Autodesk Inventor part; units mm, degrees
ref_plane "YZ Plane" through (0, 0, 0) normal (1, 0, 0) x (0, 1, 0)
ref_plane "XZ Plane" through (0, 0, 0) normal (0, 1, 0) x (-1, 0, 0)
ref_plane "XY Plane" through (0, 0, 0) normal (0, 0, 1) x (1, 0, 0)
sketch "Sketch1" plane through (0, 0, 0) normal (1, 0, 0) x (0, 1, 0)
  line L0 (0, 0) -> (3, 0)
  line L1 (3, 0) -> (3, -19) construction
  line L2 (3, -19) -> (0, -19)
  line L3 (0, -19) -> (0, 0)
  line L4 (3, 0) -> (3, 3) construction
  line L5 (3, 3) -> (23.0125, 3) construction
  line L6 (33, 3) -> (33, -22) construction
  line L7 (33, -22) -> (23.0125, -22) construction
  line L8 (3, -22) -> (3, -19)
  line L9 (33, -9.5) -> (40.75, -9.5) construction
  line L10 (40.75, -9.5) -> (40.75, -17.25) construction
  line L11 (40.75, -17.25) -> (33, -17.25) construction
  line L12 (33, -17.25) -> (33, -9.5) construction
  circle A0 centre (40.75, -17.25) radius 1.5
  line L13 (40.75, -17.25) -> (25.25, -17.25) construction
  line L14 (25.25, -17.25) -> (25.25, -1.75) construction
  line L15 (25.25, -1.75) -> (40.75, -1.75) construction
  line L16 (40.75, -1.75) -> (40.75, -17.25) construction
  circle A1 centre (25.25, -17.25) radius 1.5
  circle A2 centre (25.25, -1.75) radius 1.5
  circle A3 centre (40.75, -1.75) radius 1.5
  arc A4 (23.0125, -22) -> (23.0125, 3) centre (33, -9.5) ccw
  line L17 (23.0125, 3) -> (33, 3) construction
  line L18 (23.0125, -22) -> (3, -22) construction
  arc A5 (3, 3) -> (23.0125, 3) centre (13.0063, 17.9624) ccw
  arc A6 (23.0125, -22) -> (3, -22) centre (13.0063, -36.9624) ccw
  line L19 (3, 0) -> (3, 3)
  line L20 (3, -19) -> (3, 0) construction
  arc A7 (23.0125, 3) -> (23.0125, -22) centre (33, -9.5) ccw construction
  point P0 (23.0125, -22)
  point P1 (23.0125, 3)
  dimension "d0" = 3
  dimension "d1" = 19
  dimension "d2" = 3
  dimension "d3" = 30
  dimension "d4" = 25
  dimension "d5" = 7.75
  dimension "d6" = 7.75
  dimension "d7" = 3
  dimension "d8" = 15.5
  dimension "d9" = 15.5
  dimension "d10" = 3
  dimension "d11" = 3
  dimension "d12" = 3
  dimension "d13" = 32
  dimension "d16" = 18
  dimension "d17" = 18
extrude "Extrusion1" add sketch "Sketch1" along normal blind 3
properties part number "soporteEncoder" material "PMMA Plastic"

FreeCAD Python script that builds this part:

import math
import FreeCAD as App
import Part
import Sketcher

doc = App.newDocument("Part")
body = doc.addObject("PartDesign::Body", "Body")

sketch1 = doc.addObject("Sketcher::SketchObject", "Sketch")
body.addObject(sketch1)
sketch1.AttachmentSupport = (doc.YZ_Plane, [""])
sketch1.MapMode = "FlatFace"
sketch1.addGeometry(Part.LineSegment(App.Vector(3, 0, 0), App.Vector(0, 0, 0)), False)
sketch1.addGeometry(Part.LineSegment(App.Vector(0, 0, 0), App.Vector(0, -19, 0)), False)
sketch1.addGeometry(Part.LineSegment(App.Vector(0, -19, 0), App.Vector(3, -19, 0)), False)
sketch1.addGeometry(Part.LineSegment(App.Vector(3, -19, 0), App.Vector(3, -22, 0)), False)
sketch1.addGeometry(Part.ArcOfCircle(Part.Circle(App.Vector(13.0063, -36.9624, 0), App.Vector(0, 0, 1), 17.999929), math.radians(56.227122), math.radians(123.773142)), False)
sketch1.addGeometry(Part.ArcOfCircle(Part.Circle(App.Vector(33, -9.5, 0), App.Vector(0, 0, 1), 16.000005), math.radians(-128.624855), math.radians(128.624855)), False)
sketch1.addGeometry(Part.ArcOfCircle(Part.Circle(App.Vector(13.0063, 17.9624, 0), App.Vector(0, 0, 1), 17.999985), math.radians(-123.773142), math.radians(-56.227122)), False)
sketch1.addGeometry(Part.LineSegment(App.Vector(3, 3, 0), App.Vector(3, 0, 0)), False)
sketch1.addGeometry(Part.Circle(App.Vector(25.25, -17.25, 0), App.Vector(0, 0, 1), 1.5), False)
sketch1.addGeometry(Part.Circle(App.Vector(40.75, -17.25, 0), App.Vector(0, 0, 1), 1.5), False)
sketch1.addGeometry(Part.Circle(App.Vector(25.25, -1.75, 0), App.Vector(0, 0, 1), 1.5), False)
sketch1.addGeometry(Part.Circle(App.Vector(40.75, -1.75, 0), App.Vector(0, 0, 1), 1.5), False)
sketch1.addConstraint(Sketcher.Constraint("Coincident", 0, 2, 1, 1))
sketch1.addConstraint(Sketcher.Constraint("Coincident", 1, 2, 2, 1))
sketch1.addConstraint(Sketcher.Constraint("Coincident", 2, 2, 3, 1))
sketch1.addConstraint(Sketcher.Constraint("Coincident", 3, 2, 4, 2))
sketch1.addConstraint(Sketcher.Constraint("Coincident", 4, 1, 5, 1))
sketch1.addConstraint(Sketcher.Constraint("Coincident", 5, 2, 6, 2))
sketch1.addConstraint(Sketcher.Constraint("Coincident", 6, 1, 7, 1))
sketch1.addConstraint(Sketcher.Constraint("Coincident", 7, 2, 0, 1))
sketch1.addConstraint(Sketcher.Constraint("Horizontal", 0))
sketch1.addConstraint(Sketcher.Constraint("Vertical", 1))
sketch1.addConstraint(Sketcher.Constraint("Horizontal", 2))
sketch1.addConstraint(Sketcher.Constraint("Vertical", 3))
sketch1.addConstraint(Sketcher.Constraint("Vertical", 7))
sketch1.addConstraint(Sketcher.Constraint("Coincident", 0, 2, -1, 1))
sketch1.addConstraint(Sketcher.Constraint("Equal", 4, 6))
sketch1.addConstraint(Sketcher.Constraint("Equal", 8, 9))
sketch1.addConstraint(Sketcher.Constraint("Equal", 9, 10))
sketch1.addConstraint(Sketcher.Constraint("Equal", 10, 11))
sketch1.addConstraint(Sketcher.Constraint("Horizontal", 8, 3, 9, 3))
sketch1.addConstraint(Sketcher.Constraint("Horizontal", 10, 3, 11, 3))
sketch1.addConstraint(Sketcher.Constraint("Horizontal", 3, 2, 4, 1))
sketch1.addConstraint(Sketcher.Constraint("Horizontal", 5, 2, 6, 1))
sketch1.addConstraint(Sketcher.Constraint("Vertical", 4, 3, 6, 3))
sketch1.addConstraint(Sketcher.Constraint("Vertical", 8, 3, 10, 3))
sketch1.addConstraint(Sketcher.Constraint("Vertical", 9, 3, 11, 3))
sketch1.addConstraint(Sketcher.Constraint("Vertical", 4, 1, 5, 2))
sketch1.addConstraint(Sketcher.Constraint("Equal", 2, 3))
sketch1.addConstraint(Sketcher.Constraint("Equal", 3, 7))
sketch1.addConstraint(Sketcher.Constraint("Diameter", 8, 3.0))
sketch1.addConstraint(Sketcher.Constraint("Radius", 4, 18.0))
sketch1.addConstraint(Sketcher.Constraint("Radius", 5, 16.0))
sketch1.addConstraint(Sketcher.Constraint("DistanceX", 0, 2, 0, 1, 3.0))
sketch1.addConstraint(Sketcher.Constraint("DistanceY", 1, 2, 1, 1, 19.0))
sketch1.addConstraint(Sketcher.Constraint("DistanceX", 8, 3, 9, 3, 15.5))
sketch1.addConstraint(Sketcher.Constraint("DistanceY", 8, 3, 10, 3, 15.5))
sketch1.addConstraint(Sketcher.Constraint("DistanceX", 8, 3, 5, 3, 7.75))
sketch1.addConstraint(Sketcher.Constraint("DistanceY", 8, 3, 5, 3, 7.75))
sketch1.addConstraint(Sketcher.Constraint("DistanceX", -1, 1, 5, 3, 33.0))
pad1 = doc.addObject("PartDesign::Pad", "Pad")
body.addObject(pad1)
pad1.Profile = sketch1
pad1.Length = 3

doc.recompute()
